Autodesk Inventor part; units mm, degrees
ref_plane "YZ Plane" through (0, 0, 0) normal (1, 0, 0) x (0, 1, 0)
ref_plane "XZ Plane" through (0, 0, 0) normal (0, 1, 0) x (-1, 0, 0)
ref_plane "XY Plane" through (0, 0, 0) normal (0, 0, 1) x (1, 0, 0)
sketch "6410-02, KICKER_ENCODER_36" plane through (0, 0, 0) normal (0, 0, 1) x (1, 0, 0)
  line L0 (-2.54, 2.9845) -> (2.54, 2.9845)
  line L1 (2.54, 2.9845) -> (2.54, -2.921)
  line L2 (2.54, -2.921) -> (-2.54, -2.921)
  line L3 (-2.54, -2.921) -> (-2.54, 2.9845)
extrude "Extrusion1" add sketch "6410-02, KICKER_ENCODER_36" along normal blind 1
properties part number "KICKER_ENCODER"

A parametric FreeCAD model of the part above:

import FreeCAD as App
import Part
import Sketcher


def add_polygon(sketch, points):
    """Adds a closed chain of lines whose ends are joined by coincident constraints."""
    first, n = sketch.GeometryCount, len(points)
    for a, b in zip(points, points[1:] + points[:1]):
        sketch.addGeometry(Part.LineSegment(App.Vector(*a, 0), App.Vector(*b, 0)), False)
    for i in range(n):
        sketch.addConstraint(Sketcher.Constraint("Coincident", first + i, 2, first + (i + 1) % n, 1))

doc = App.newDocument("Part")
body = doc.addObject("PartDesign::Body", "Body")

# Sketch on XY plane
sketch1 = body.newObject("Sketcher::SketchObject", "Sketch")
sketch1.AttachmentSupport = (doc.getObject("XY_Plane"), [""])
sketch1.MapMode = "FlatFace"
add_polygon(sketch1, [(3, 3), (-3, 3), (-3, -3), (3, -3)])  # lines 0-3
sketch1.addConstraint([
    Sketcher.Constraint("Horizontal", 0),
    Sketcher.Constraint("Vertical", 1),
    Sketcher.Constraint("Horizontal", 2),
    Sketcher.Constraint("Vertical", 3),
    Sketcher.Constraint("DistanceX", 0, 2, 0, 1, 5.08),
    Sketcher.Constraint("DistanceX", 0, 2, -1, 1, 2.54),
    Sketcher.Constraint("DistanceY", 1, 2, 1, 1, 5.9055),
    Sketcher.Constraint("DistanceY", 1, 2, -1, 1, 2.921),
])
pad1 = body.newObject("PartDesign::Pad", "Pad")
pad1.Profile = sketch1
pad1.Length = 1

doc.recompute()
